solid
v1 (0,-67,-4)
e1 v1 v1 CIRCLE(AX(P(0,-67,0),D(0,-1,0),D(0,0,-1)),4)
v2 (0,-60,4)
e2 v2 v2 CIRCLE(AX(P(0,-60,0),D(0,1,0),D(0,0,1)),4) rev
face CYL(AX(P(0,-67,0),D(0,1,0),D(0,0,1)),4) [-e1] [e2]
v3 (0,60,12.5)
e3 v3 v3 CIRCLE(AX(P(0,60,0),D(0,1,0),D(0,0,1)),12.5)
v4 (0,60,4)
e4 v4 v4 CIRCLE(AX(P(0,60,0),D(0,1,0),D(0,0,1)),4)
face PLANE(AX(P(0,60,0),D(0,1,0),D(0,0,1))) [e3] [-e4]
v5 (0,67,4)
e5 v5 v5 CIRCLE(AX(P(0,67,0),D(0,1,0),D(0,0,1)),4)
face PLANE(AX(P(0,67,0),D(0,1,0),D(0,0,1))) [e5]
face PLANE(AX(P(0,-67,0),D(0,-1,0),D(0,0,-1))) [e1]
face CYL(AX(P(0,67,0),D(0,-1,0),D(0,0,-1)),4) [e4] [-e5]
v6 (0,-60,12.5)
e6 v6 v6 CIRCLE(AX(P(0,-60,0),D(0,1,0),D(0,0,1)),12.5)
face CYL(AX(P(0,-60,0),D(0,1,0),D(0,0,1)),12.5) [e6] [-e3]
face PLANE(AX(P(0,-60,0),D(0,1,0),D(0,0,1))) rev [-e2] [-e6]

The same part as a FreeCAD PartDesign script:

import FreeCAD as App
import Part
import Sketcher

V = App.Vector

doc = App.newDocument("Part")
body = doc.addObject("PartDesign::Body", "Body")

sketch1 = body.newObject("Sketcher::SketchObject", "Sketch")
sketch1.AttachmentSupport = (doc.getObject("XZ_Plane"), [""])
sketch1.MapMode = "FlatFace"
sketch1.addGeometry(Part.Circle(V(0, 0, 0), V(0, 0, 1), 12), False)
sketch1.addConstraint([
    Sketcher.Constraint("Coincident", 0, 3, -1, 1),
    Sketcher.Constraint("Diameter", 0, 25.0),
])
pad1 = body.newObject("PartDesign::Pad", "Pad")
pad1.Profile = sketch1
pad1.Type = "TwoLengths"
pad1.Length = 60
pad1.Length2 = 60
pad1.Reversed = True

sketch2 = body.newObject("Sketcher::SketchObject", "Sketch001")
sketch2.AttachmentSupport = (doc.getObject("XZ_Plane"), [""])
sketch2.MapMode = "FlatFace"
sketch2.AttachmentOffset = App.Placement(V(0, 0, -60), App.Rotation())
sketch2.addGeometry(Part.Circle(V(0, 0, 0), V(0, 0, 1), 4), False)
sketch2.addConstraint([
    Sketcher.Constraint("Coincident", 0, 3, -1, 1),
    Sketcher.Constraint("Diameter", 0, 8.0),
])
pad2 = body.newObject("PartDesign::Pad", "Pad001")
pad2.Profile = sketch2
pad2.Length = 7
pad2.Reversed = True

sketch3 = body.newObject("Sketcher::SketchObject", "Sketch002")
sketch3.AttachmentSupport = (doc.getObject("XZ_Plane"), [""])
sketch3.MapMode = "FlatFace"
sketch3.AttachmentOffset = App.Placement(V(0, 0, 60), App.Rotation())
sketch3.addGeometry(Part.Circle(V(0, 0, 0), V(0, 0, 1), 4), False)
sketch3.addConstraint([
    Sketcher.Constraint("Coincident", 0, 3, -1, 1),
    Sketcher.Constraint("Diameter", 0, 8.0),
])
pad3 = body.newObject("PartDesign::Pad", "Pad002")
pad3.Profile = sketch3
pad3.Length = 7

doc.recompute()
